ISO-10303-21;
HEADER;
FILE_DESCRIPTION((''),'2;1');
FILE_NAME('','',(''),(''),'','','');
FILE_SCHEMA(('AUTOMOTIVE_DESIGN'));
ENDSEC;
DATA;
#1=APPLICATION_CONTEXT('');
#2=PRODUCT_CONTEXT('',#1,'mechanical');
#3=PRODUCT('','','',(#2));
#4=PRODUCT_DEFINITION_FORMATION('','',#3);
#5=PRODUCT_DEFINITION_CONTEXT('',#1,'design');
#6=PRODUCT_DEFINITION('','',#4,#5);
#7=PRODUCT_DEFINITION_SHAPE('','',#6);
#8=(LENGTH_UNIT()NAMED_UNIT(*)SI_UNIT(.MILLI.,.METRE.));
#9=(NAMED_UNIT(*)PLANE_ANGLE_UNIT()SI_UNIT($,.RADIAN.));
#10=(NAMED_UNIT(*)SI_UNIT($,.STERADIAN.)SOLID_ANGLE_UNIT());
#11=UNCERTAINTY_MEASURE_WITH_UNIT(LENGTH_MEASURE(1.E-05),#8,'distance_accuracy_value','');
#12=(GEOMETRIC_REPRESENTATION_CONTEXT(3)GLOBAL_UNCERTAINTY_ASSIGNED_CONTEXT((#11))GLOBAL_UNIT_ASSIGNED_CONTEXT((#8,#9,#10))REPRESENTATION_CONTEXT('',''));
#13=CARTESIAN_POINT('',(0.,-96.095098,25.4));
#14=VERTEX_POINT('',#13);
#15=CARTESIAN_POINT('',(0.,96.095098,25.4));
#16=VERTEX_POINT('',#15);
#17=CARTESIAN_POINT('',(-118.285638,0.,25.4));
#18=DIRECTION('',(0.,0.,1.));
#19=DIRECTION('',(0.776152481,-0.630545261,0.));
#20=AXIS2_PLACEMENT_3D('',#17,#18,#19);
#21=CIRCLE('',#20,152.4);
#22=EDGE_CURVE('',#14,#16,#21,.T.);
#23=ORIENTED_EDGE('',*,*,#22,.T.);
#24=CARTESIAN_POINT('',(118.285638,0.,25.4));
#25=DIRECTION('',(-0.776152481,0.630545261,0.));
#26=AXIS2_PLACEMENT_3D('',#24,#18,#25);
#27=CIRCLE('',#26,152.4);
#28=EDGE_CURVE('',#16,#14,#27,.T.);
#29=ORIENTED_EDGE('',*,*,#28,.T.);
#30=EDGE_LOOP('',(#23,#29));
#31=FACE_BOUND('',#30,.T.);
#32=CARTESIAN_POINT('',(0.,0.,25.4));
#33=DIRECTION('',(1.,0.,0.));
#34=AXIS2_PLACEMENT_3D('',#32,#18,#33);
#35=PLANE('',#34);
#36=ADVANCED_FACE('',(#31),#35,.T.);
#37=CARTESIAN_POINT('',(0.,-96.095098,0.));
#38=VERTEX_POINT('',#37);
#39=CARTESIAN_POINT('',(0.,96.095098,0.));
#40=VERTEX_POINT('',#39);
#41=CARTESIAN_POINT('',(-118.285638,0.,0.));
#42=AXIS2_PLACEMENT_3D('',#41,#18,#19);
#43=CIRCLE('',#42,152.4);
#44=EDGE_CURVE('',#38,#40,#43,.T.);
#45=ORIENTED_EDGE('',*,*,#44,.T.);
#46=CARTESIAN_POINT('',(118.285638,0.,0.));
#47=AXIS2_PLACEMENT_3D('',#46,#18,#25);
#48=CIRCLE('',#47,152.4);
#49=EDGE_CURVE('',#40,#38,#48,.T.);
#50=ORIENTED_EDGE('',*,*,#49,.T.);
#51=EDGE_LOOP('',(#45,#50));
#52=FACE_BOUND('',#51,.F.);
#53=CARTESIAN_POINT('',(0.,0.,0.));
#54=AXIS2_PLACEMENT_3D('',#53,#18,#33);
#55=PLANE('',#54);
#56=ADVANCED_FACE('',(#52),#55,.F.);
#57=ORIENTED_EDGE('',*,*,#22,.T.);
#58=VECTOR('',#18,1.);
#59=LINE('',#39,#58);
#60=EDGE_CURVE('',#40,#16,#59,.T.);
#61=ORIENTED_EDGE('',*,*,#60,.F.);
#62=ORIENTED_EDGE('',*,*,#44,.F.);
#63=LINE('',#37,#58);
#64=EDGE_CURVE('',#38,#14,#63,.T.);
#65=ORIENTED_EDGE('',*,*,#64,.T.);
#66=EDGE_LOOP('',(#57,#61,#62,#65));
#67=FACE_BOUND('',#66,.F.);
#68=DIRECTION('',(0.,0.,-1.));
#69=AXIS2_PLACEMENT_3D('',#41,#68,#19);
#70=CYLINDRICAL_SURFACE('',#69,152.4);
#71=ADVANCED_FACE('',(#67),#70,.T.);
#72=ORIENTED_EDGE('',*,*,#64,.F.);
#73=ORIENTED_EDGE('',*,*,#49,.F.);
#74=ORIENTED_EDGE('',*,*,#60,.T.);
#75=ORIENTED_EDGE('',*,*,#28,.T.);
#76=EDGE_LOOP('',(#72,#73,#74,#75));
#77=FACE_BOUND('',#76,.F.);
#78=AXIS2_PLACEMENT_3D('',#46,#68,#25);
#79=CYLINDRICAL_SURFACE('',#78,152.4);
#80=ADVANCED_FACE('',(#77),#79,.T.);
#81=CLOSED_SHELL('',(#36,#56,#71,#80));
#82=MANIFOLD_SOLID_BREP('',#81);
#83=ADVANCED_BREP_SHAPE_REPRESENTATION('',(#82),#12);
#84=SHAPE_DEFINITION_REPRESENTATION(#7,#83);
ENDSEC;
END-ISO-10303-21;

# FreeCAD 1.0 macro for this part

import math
import FreeCAD as App
import Part
import Sketcher

V = App.Vector
Q = App.Units.Quantity

doc = App.newDocument("Part")
body = doc.addObject("PartDesign::Body", "Body")

sketch1 = body.newObject("Sketcher::SketchObject", "Sketch")
sketch1.AttachmentSupport = (doc.getObject("XY_Plane"), [""])
sketch1.MapMode = "FlatFace"
sketch1.addGeometry([
    Part.ArcOfCircle(Part.Circle(V(-118, 0, 0), V(0, 0, 1), 152), math.radians(-39), math.radians(39)),
    Part.ArcOfCircle(Part.Circle(V(118, 0, 0), V(0, 0, 1), 152), math.radians(141), math.radians(219)),
], False)
sketch1.addConstraint([
    Sketcher.Constraint("Coincident", 0, 1, 1, 2),
    Sketcher.Constraint("Coincident", 1, 1, 0, 2),
    Sketcher.Constraint("Equal", 0, 1),
    Sketcher.Constraint("Symmetric", 0, 3, 1, 3, -1, 1),
    Sketcher.Constraint("PointOnObject", 0, 3, -1),
    Sketcher.Constraint("Radius", 0, Q("6 in")),
    Sketcher.Constraint("DistanceY", 0, 1, -1, 1, 96.095098),
])
pad1 = body.newObject("PartDesign::Pad", "Pad")
pad1.Profile = sketch1
pad1.Length = Q("1 in")

doc.recompute()
